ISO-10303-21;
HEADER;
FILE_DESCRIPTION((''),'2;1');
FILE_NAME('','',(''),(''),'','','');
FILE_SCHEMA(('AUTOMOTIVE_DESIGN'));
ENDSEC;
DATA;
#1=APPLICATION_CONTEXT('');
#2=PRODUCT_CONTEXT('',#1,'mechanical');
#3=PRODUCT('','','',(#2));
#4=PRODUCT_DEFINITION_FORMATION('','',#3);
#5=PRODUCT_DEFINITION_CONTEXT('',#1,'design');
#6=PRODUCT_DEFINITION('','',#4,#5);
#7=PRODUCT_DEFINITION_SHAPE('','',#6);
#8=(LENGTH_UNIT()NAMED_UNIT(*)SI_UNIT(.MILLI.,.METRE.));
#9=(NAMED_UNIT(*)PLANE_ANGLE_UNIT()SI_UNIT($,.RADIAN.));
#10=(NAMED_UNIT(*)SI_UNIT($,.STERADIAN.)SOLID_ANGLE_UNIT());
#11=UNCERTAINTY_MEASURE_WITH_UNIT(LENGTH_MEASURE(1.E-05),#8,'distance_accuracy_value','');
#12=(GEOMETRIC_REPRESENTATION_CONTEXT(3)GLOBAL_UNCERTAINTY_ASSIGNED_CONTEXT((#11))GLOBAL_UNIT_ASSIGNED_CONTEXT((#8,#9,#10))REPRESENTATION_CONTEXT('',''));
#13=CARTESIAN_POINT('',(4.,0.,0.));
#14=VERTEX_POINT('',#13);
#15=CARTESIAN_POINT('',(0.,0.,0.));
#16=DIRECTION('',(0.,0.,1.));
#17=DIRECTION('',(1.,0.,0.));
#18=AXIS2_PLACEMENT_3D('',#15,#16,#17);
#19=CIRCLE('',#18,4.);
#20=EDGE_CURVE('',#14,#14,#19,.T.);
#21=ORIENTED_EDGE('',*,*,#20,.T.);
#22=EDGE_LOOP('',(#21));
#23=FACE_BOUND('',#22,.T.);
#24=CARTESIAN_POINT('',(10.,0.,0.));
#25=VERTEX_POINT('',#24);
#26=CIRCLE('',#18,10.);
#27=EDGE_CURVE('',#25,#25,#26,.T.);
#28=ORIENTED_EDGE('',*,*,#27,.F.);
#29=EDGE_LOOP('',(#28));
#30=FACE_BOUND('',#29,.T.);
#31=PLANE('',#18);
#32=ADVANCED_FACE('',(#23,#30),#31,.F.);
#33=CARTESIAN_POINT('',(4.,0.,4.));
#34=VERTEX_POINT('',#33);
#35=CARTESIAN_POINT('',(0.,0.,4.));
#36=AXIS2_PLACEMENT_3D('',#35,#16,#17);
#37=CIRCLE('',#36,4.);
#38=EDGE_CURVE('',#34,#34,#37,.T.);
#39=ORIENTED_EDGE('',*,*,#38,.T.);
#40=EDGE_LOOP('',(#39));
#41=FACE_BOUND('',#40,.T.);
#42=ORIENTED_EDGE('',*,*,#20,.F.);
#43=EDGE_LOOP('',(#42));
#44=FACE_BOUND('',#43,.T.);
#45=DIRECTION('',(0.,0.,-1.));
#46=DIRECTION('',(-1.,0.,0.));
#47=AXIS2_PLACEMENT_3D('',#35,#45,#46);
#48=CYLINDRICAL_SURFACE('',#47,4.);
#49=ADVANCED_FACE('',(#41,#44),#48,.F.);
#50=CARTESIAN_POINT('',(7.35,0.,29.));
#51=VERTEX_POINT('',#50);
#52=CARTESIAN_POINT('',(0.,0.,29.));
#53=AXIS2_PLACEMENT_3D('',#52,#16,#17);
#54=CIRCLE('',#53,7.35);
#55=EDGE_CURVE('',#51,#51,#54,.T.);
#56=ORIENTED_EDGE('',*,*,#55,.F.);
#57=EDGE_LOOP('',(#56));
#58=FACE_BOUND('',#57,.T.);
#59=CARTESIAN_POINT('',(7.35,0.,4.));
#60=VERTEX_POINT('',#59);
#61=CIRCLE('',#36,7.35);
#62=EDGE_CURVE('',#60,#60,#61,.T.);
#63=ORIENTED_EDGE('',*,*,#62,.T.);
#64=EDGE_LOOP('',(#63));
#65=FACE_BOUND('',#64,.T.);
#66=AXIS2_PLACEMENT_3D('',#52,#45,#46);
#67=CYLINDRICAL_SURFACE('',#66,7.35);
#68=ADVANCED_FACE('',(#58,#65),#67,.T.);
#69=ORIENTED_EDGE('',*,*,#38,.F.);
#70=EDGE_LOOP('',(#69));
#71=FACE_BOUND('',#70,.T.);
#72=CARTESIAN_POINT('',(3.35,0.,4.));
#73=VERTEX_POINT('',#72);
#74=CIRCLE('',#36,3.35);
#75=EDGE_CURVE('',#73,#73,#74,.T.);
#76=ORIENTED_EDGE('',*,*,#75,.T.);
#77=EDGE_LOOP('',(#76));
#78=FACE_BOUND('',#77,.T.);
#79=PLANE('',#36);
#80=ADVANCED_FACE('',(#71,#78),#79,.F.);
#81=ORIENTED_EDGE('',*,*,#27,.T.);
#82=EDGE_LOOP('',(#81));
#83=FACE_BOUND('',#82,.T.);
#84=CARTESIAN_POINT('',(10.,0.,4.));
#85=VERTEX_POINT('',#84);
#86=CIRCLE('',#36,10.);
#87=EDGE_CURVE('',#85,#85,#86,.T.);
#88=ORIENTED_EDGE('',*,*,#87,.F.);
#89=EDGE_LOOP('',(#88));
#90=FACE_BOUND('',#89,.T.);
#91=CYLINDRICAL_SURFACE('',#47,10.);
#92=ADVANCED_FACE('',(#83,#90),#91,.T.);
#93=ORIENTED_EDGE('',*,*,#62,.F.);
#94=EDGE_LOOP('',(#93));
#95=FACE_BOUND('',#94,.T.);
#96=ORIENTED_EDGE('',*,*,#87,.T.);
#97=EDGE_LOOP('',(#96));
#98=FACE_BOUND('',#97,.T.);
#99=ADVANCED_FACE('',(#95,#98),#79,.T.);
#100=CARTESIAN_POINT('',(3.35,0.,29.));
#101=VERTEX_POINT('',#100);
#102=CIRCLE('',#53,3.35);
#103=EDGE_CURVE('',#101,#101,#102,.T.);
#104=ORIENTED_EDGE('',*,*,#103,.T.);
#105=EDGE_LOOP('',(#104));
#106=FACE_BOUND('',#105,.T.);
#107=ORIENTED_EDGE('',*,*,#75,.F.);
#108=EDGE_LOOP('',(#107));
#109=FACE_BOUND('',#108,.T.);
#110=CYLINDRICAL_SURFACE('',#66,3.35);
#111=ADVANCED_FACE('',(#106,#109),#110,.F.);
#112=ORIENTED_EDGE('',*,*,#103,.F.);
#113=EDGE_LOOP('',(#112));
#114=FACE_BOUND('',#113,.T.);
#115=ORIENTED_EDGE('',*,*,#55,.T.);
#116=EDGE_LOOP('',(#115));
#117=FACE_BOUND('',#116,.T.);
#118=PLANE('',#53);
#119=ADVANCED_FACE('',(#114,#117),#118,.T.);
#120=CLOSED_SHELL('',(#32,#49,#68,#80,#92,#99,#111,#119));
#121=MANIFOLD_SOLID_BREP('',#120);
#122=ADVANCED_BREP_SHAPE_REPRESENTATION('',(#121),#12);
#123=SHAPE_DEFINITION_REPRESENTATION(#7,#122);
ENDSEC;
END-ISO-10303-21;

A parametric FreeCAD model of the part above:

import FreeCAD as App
import Part
import Sketcher

V = App.Vector
Q = App.Units.Quantity

doc = App.newDocument("Part")
body = doc.addObject("PartDesign::Body", "Body")

sketch1 = body.newObject("Sketcher::SketchObject", "Sketch")
sketch1.AttachmentSupport = (doc.getObject("XY_Plane"), [""])
sketch1.MapMode = "FlatFace"
sketch1.addGeometry([
    Part.Circle(V(0, 0, 0), V(0, 0, 1), 10),
    Part.Circle(V(0, 0, 0), V(0, 0, 1), 4),
], False)
sketch1.addConstraint([
    Sketcher.Constraint("Coincident", 0, 3, -1, 1),
    Sketcher.Constraint("Coincident", 1, 3, -1, 1),
    Sketcher.Constraint("Diameter", 0, Q("20 mm")),
    Sketcher.Constraint("Diameter", 1, Q("8 mm")),
])
pad1 = body.newObject("PartDesign::Pad", "Pad")
pad1.Profile = sketch1
pad1.Length = 4

sketch2 = body.newObject("Sketcher::SketchObject", "Sketch001")
sketch2.AttachmentSupport = (doc.getObject("XY_Plane"), [""])
sketch2.MapMode = "FlatFace"
sketch2.AttachmentOffset = App.Placement(V(0, 0, 4), App.Rotation())
sketch2.addGeometry([
    Part.Circle(V(0, 0, 0), V(0, 0, 1), 7.3),
    Part.Circle(V(0, 0, 0), V(0, 0, 1), 3.4),
], False)
sketch2.addConstraint([
    Sketcher.Constraint("Coincident", 0, 3, -1, 1),
    Sketcher.Constraint("Coincident", 1, 3, -1, 1),
    Sketcher.Constraint("Diameter", 0, Q("14.7 mm")),
    Sketcher.Constraint("Diameter", 1, Q("6.7 mm")),
])
pad2 = body.newObject("PartDesign::Pad", "Pad001")
pad2.Profile = sketch2
pad2.Length = 25

doc.recompute()
